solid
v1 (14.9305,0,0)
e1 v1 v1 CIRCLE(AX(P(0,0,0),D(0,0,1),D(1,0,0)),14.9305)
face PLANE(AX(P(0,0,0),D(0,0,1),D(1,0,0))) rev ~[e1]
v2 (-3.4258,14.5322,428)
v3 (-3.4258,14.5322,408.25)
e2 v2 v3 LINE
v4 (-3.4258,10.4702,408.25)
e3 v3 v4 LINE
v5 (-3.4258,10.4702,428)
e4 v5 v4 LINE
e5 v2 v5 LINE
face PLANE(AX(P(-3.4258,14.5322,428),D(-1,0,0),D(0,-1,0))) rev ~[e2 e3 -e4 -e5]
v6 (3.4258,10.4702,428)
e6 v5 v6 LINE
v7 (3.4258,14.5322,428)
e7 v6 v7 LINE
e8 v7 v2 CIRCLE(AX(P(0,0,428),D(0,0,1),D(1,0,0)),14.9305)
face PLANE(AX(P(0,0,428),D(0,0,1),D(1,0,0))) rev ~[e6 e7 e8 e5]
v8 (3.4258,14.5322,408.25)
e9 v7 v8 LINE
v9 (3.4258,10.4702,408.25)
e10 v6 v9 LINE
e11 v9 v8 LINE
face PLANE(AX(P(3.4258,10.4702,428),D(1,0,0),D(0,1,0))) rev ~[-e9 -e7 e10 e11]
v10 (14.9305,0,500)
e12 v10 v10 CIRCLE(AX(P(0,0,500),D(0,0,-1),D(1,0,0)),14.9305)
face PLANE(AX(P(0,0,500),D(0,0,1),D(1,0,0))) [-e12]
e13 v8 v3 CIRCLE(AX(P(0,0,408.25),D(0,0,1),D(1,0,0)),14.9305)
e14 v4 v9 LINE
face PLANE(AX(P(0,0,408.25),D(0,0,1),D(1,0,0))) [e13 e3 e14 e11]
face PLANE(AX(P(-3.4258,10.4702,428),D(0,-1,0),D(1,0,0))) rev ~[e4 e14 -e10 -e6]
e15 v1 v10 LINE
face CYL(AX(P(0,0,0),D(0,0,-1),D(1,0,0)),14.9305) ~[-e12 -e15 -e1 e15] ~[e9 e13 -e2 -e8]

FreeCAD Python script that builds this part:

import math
import FreeCAD as App
import Part
import Sketcher

doc = App.newDocument("Part")
body = doc.addObject("PartDesign::Body", "Body")

sketch1 = body.newObject("Sketcher::SketchObject", "Sketch")
sketch1.AttachmentSupport = (doc.getObject("XY_Plane"), [""])
sketch1.MapMode = "FlatFace"
sketch1.addGeometry(Part.Circle(App.Vector(0, 0, 0), App.Vector(0, 0, 1), 15), False)
sketch1.addConstraint([
    Sketcher.Constraint("Coincident", 0, 3, -1, 1),
    Sketcher.Constraint("Diameter", 0, 29.861),
])
pad1 = body.newObject("PartDesign::Pad", "Pad")
pad1.Profile = sketch1
pad1.Length = 500

sketch2 = body.newObject("Sketcher::SketchObject", "Sketch001")
sketch2.AttachmentSupport = (doc.getObject("XY_Plane"), [""])
sketch2.MapMode = "FlatFace"
sketch2.AttachmentOffset = App.Placement(App.Vector(0, 0, 428), App.Rotation())
sketch2.addGeometry([
    Part.LineSegment(App.Vector(3.4, 10.5, 0), App.Vector(3.4, 14.5, 0)),
    Part.ArcOfCircle(Part.Circle(App.Vector(0, 0, 0), App.Vector(0, 0, 1), 14.9), math.radians(77), math.radians(103)),
    Part.LineSegment(App.Vector(-3.4, 14.5, 0), App.Vector(-3.4, 10.5, 0)),
    Part.LineSegment(App.Vector(-3.4, 10.5, 0), App.Vector(3.4, 10.5, 0)),
], False)
sketch2.addConstraint([
    Sketcher.Constraint("Coincident", 0, 2, 1, 1),
    Sketcher.Constraint("Coincident", 1, 2, 2, 1),
    Sketcher.Constraint("Coincident", 2, 2, 3, 1),
    Sketcher.Constraint("Coincident", 3, 2, 0, 1),
    Sketcher.Constraint("Vertical", 0),
    Sketcher.Constraint("Vertical", 2),
    Sketcher.Constraint("Horizontal", 3),
    Sketcher.Constraint("Coincident", 1, 3, -1, 1),
    Sketcher.Constraint("Horizontal", 0, 2, 1, 2),
    Sketcher.Constraint("DistanceY", 0, 1, 0, 2, 4.062),
    Sketcher.Constraint("DistanceX", 3, 1, 3, 2, 6.8516),
    Sketcher.Constraint("Radius", 1, 14.9305),
])
pocket1 = body.newObject("PartDesign::Pocket", "Pocket")
pocket1.Profile = sketch2
pocket1.Length = 19.75

doc.recompute()
